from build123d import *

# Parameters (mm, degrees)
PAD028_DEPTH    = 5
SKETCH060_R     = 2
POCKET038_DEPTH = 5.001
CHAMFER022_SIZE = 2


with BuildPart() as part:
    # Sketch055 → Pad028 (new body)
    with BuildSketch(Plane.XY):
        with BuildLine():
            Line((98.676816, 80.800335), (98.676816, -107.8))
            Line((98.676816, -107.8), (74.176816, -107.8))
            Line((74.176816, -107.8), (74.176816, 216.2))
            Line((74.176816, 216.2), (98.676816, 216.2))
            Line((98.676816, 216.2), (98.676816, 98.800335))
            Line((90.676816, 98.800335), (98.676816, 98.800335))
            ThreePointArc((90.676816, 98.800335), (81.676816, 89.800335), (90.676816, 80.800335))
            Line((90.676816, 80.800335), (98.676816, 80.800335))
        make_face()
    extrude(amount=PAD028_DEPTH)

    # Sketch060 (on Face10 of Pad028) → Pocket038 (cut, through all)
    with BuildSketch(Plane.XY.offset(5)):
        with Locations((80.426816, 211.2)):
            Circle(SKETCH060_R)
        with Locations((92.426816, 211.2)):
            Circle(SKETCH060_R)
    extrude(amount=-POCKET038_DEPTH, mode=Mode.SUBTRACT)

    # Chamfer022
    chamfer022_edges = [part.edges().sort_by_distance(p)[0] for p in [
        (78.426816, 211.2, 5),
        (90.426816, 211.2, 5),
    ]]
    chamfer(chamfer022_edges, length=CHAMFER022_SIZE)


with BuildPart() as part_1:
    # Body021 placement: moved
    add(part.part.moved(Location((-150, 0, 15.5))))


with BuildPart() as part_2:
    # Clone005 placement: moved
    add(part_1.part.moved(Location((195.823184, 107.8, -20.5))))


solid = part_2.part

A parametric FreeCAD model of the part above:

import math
import FreeCAD as App
import Part
import Sketcher
from FreeCAD import Vector
Q = App.Units.Quantity


def edges_at(feature, points):
    """Names of the edges that pass closest to the given points."""
    edges = feature.Shape.Edges
    near = lambda p: min(range(len(edges)), key=lambda i: edges[i].distToShape(Part.Vertex(*p))[0])
    return sorted({f"Edge{near(p) + 1}" for p in points})

doc = App.newDocument("Part")
body = doc.addObject("PartDesign::Body", "Body")

sketch1 = body.newObject("Sketcher::SketchObject", "Sketch")
sketch1.AttachmentSupport = (doc.getObject("XY_Plane"), [""])
sketch1.MapMode = "FlatFace"
sketch1.addGeometry(Part.LineSegment(Vector(98.676816, -107.8, 0), Vector(98.676816, 80.800335, 0)), False)
sketch1.addGeometry(Part.LineSegment(Vector(98.676816, 80.800335, 0), Vector(90.676816, 80.800335, 0)), False)
sketch1.addGeometry(Part.ArcOfCircle(Part.Circle(Vector(90.676816, 89.800335, 0), Vector(0, 0, 1), 9), math.radians(90), math.radians(270)), False)
sketch1.addGeometry(Part.LineSegment(Vector(90.676816, 98.800335, 0), Vector(98.676816, 98.800335, 0)), False)
sketch1.addGeometry(Part.LineSegment(Vector(98.676816, 98.800335, 0), Vector(98.676816, 216.2, 0)), False)
sketch1.addGeometry(Part.LineSegment(Vector(98.676816, 216.2, 0), Vector(74.176816, 216.2, 0)), False)
sketch1.addGeometry(Part.LineSegment(Vector(74.176816, 216.2, 0), Vector(74.176816, -107.8, 0)), False)
sketch1.addGeometry(Part.LineSegment(Vector(74.176816, -107.8, 0), Vector(98.676816, -107.8, 0)), False)
sketch1.addConstraint(Sketcher.Constraint("Coincident", 0, 2, 1, 1))
sketch1.addConstraint(Sketcher.Constraint("Tangent", 1, 2, 2, 2))
sketch1.addConstraint(Sketcher.Constraint("Tangent", 2, 1, 3, 1))
sketch1.addConstraint(Sketcher.Constraint("Coincident", 3, 2, 4, 1))
sketch1.addConstraint(Sketcher.Constraint("Coincident", 4, 2, 5, 1))
sketch1.addConstraint(Sketcher.Constraint("Coincident", 5, 2, 6, 1))
sketch1.addConstraint(Sketcher.Constraint("Coincident", 6, 2, 7, 1))
sketch1.addConstraint(Sketcher.Constraint("Coincident", 7, 2, 0, 1))
sketch1.addConstraint(Sketcher.Constraint("Vertical", 0))
sketch1.addConstraint(Sketcher.Constraint("Horizontal", 1))
sketch1.addConstraint(Sketcher.Constraint("Horizontal", 3))
sketch1.addConstraint(Sketcher.Constraint("Vertical", 4))
sketch1.addConstraint(Sketcher.Constraint("Horizontal", 5))
sketch1.addConstraint(Sketcher.Constraint("Vertical", 6))
sketch1.addConstraint(Sketcher.Constraint("Horizontal", 7))
sketch1.addConstraint(Sketcher.Constraint("Vertical", 0, 2, 3, 2))
sketch1.addConstraint(Sketcher.Constraint("Radius", 2, Q("9 mm")))
sketch1.addConstraint(Sketcher.Constraint("DistanceX", 1, 2, 1, 1, Q("8 mm")))
sketch1.addConstraint(Sketcher.Constraint("DistanceY", 6, 2, 6, 1, Q("324 mm")))
sketch1.addConstraint(Sketcher.Constraint("DistanceX", 5, 2, 5, 1, Q("24.5 mm")))
sketch1.addConstraint(Sketcher.Constraint("DistanceY", -1, 1, 4, 2, Q("216.2 mm")))
sketch1.addConstraint(Sketcher.Constraint("DistanceY", 0, 1, 0, 2, Q("188.600335 mm")))
sketch1.addConstraint(Sketcher.Constraint("DistanceX", -1, 1, 2, 3, Q("90.676816 mm")))
pad1 = body.newObject("PartDesign::Pad", "Pad")
pad1.Profile = sketch1
pad1.Length = 5

sketch2 = body.newObject("Sketcher::SketchObject", "Sketch001")
sketch2.AttachmentSupport = (doc.getObject("XY_Plane"), [""])
sketch2.MapMode = "FlatFace"
sketch2.AttachmentOffset = App.Placement(Vector(0, 0, 5), App.Rotation())
sketch2.addGeometry(Part.Circle(Vector(80.426816, 211.2, 0), Vector(0, 0, 1), 2), False)
sketch2.addGeometry(Part.Circle(Vector(92.426816, 211.2, 0), Vector(0, 0, 1), 2), False)
sketch2.addConstraint(Sketcher.Constraint("Equal", 0, 1))
sketch2.addConstraint(Sketcher.Constraint("Horizontal", 0, 3, 1, 3))
sketch2.addConstraint(Sketcher.Constraint("Diameter", 0, Q("4 mm")))
sketch2.addConstraint(Sketcher.Constraint("DistanceX", 0, 3, 1, 3, Q("12 mm")))
sketch2.addConstraint(Sketcher.Constraint("DistanceY", -1, 1, 0, 3, Q("211.2 mm")))
sketch2.addConstraint(Sketcher.Constraint("DistanceX", -1, 1, 0, 3, Q("80.426816 mm")))
pocket1 = body.newObject("PartDesign::Pocket", "Pocket")
pocket1.Profile = sketch2
pocket1.Type = "ThroughAll"
doc.recompute()

chamfer = body.newObject("PartDesign::Chamfer", "Chamfer")
chamfer.Base = (pocket1, edges_at(pocket1, [(78.427, 211.2, 5), (90.427, 211.2, 5)]))
chamfer.Size = 2
body2 = doc.addObject("PartDesign::Body", "Body001")
doc.recompute()

body.Placement = App.Placement(Vector(-150, 0, 15.5), App.Rotation(Vector(0, 0, 1), 0))
boolean = body2.newObject("PartDesign::Boolean", "Boolean")
boolean.Type = "Fuse"
boolean.addObjects([body])
body3 = doc.addObject("PartDesign::Body", "Body002")
doc.recompute()

body2.Placement = App.Placement(Vector(195.823184, 107.8, -20.5), App.Rotation(Vector(0, 0, 1), 0))
boolean2 = body3.newObject("PartDesign::Boolean", "Boolean001")
boolean2.Type = "Fuse"
boolean2.addObjects([body2])

doc.recompute()
